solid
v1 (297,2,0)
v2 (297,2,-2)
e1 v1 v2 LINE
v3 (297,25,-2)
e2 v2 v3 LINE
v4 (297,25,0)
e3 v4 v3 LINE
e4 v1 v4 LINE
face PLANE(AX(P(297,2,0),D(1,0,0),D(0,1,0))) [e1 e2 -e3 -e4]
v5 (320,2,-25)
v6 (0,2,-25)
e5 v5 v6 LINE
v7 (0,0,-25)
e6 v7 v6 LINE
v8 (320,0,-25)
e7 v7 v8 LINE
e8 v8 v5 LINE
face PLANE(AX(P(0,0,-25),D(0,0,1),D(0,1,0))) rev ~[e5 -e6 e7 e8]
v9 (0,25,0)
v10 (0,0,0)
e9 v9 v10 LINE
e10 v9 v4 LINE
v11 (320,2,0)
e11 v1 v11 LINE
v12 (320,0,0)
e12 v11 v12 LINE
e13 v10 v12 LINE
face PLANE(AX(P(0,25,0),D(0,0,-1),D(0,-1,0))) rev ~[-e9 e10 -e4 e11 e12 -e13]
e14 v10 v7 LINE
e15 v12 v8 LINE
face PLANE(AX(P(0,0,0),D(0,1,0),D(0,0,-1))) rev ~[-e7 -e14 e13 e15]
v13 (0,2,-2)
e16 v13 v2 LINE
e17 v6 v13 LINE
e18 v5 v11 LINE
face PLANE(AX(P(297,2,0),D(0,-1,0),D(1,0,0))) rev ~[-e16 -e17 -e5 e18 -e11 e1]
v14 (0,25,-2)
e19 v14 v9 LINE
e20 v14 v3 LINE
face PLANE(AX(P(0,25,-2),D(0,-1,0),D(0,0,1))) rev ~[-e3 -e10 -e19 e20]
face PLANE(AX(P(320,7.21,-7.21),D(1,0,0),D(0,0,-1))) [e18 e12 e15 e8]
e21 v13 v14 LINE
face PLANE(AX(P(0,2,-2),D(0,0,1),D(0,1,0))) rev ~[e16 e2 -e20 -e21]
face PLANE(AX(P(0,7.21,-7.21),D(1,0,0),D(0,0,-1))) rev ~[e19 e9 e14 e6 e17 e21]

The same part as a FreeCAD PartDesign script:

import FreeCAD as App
import Part
import Sketcher
from FreeCAD import Vector

doc = App.newDocument("Part")
body = doc.addObject("PartDesign::Body", "Body")

sketch1 = body.newObject("Sketcher::SketchObject", "Sketch")
sketch1.AttachmentSupport = (doc.getObject("YZ_Plane"), [""])
sketch1.MapMode = "FlatFace"
sketch1.addGeometry(Part.LineSegment(Vector(25, 0, 0), Vector(0, 0, 0)), False)
sketch1.addGeometry(Part.LineSegment(Vector(0, 0, 0), Vector(0, -25, 0)), False)
sketch1.addGeometry(Part.LineSegment(Vector(0, -25, 0), Vector(2, -25, 0)), False)
sketch1.addGeometry(Part.LineSegment(Vector(2, -25, 0), Vector(2, -2, 0)), False)
sketch1.addGeometry(Part.LineSegment(Vector(2, -2, 0), Vector(25, -2, 0)), False)
sketch1.addGeometry(Part.LineSegment(Vector(25, -2, 0), Vector(25, 0, 0)), False)
sketch1.addConstraint(Sketcher.Constraint("Coincident", 0, 2, 1, 1))
sketch1.addConstraint(Sketcher.Constraint("Coincident", 1, 2, 2, 1))
sketch1.addConstraint(Sketcher.Constraint("Coincident", 2, 2, 3, 1))
sketch1.addConstraint(Sketcher.Constraint("Coincident", 3, 2, 4, 1))
sketch1.addConstraint(Sketcher.Constraint("Coincident", 4, 2, 5, 1))
sketch1.addConstraint(Sketcher.Constraint("Coincident", 5, 2, 0, 1))
sketch1.addConstraint(Sketcher.Constraint("Horizontal", 0))
sketch1.addConstraint(Sketcher.Constraint("Vertical", 1))
sketch1.addConstraint(Sketcher.Constraint("Horizontal", 2))
sketch1.addConstraint(Sketcher.Constraint("Vertical", 3))
sketch1.addConstraint(Sketcher.Constraint("Horizontal", 4))
sketch1.addConstraint(Sketcher.Constraint("Vertical", 5))
sketch1.addConstraint(Sketcher.Constraint("Coincident", 0, 2, -1, 1))
sketch1.addConstraint(Sketcher.Constraint("Equal", 0, 1))
sketch1.addConstraint(Sketcher.Constraint("Equal", 4, 3))
sketch1.addConstraint(Sketcher.Constraint("DistanceX", 0, 2, 0, 1, 25.0))
sketch1.addConstraint(Sketcher.Constraint("DistanceX", 2, 1, 2, 2, 2.0))
pad1 = body.newObject("PartDesign::Pad", "Pad")
pad1.Profile = sketch1
pad1.Length = 320

sketch2 = body.newObject("Sketcher::SketchObject", "Sketch001")
sketch2.AttachmentSupport = (doc.getObject("XY_Plane"), [""])
sketch2.MapMode = "FlatFace"
sketch2.addGeometry(Part.LineSegment(Vector(297, 25, 0), Vector(297, 2, 0)), False)
sketch2.addGeometry(Part.LineSegment(Vector(297, 2, 0), Vector(320, 2, 0)), False)
sketch2.addGeometry(Part.LineSegment(Vector(320, 2, 0), Vector(320, 25, 0)), False)
sketch2.addGeometry(Part.LineSegment(Vector(320, 25, 0), Vector(297, 25, 0)), False)
sketch2.addConstraint(Sketcher.Constraint("Coincident", 0, 2, 1, 1))
sketch2.addConstraint(Sketcher.Constraint("Coincident", 1, 2, 2, 1))
sketch2.addConstraint(Sketcher.Constraint("Coincident", 2, 2, 3, 1))
sketch2.addConstraint(Sketcher.Constraint("Coincident", 3, 2, 0, 1))
sketch2.addConstraint(Sketcher.Constraint("Vertical", 0))
sketch2.addConstraint(Sketcher.Constraint("Horizontal", 1))
sketch2.addConstraint(Sketcher.Constraint("Vertical", 2))
sketch2.addConstraint(Sketcher.Constraint("Horizontal", 3))
sketch2.addConstraint(Sketcher.Constraint("Equal", 3, 0))
sketch2.addConstraint(Sketcher.Constraint("DistanceX", 1, 1, 1, 2, 23.0))
sketch2.addConstraint(Sketcher.Constraint("DistanceX", -1, 1, 0, 2, 297.0))
sketch2.addConstraint(Sketcher.Constraint("DistanceY", -1, 1, 0, 2, 2.0))
pocket1 = body.newObject("PartDesign::Pocket", "Pocket")
pocket1.Profile = sketch2
pocket1.Type = "ThroughAll"

doc.recompute()
